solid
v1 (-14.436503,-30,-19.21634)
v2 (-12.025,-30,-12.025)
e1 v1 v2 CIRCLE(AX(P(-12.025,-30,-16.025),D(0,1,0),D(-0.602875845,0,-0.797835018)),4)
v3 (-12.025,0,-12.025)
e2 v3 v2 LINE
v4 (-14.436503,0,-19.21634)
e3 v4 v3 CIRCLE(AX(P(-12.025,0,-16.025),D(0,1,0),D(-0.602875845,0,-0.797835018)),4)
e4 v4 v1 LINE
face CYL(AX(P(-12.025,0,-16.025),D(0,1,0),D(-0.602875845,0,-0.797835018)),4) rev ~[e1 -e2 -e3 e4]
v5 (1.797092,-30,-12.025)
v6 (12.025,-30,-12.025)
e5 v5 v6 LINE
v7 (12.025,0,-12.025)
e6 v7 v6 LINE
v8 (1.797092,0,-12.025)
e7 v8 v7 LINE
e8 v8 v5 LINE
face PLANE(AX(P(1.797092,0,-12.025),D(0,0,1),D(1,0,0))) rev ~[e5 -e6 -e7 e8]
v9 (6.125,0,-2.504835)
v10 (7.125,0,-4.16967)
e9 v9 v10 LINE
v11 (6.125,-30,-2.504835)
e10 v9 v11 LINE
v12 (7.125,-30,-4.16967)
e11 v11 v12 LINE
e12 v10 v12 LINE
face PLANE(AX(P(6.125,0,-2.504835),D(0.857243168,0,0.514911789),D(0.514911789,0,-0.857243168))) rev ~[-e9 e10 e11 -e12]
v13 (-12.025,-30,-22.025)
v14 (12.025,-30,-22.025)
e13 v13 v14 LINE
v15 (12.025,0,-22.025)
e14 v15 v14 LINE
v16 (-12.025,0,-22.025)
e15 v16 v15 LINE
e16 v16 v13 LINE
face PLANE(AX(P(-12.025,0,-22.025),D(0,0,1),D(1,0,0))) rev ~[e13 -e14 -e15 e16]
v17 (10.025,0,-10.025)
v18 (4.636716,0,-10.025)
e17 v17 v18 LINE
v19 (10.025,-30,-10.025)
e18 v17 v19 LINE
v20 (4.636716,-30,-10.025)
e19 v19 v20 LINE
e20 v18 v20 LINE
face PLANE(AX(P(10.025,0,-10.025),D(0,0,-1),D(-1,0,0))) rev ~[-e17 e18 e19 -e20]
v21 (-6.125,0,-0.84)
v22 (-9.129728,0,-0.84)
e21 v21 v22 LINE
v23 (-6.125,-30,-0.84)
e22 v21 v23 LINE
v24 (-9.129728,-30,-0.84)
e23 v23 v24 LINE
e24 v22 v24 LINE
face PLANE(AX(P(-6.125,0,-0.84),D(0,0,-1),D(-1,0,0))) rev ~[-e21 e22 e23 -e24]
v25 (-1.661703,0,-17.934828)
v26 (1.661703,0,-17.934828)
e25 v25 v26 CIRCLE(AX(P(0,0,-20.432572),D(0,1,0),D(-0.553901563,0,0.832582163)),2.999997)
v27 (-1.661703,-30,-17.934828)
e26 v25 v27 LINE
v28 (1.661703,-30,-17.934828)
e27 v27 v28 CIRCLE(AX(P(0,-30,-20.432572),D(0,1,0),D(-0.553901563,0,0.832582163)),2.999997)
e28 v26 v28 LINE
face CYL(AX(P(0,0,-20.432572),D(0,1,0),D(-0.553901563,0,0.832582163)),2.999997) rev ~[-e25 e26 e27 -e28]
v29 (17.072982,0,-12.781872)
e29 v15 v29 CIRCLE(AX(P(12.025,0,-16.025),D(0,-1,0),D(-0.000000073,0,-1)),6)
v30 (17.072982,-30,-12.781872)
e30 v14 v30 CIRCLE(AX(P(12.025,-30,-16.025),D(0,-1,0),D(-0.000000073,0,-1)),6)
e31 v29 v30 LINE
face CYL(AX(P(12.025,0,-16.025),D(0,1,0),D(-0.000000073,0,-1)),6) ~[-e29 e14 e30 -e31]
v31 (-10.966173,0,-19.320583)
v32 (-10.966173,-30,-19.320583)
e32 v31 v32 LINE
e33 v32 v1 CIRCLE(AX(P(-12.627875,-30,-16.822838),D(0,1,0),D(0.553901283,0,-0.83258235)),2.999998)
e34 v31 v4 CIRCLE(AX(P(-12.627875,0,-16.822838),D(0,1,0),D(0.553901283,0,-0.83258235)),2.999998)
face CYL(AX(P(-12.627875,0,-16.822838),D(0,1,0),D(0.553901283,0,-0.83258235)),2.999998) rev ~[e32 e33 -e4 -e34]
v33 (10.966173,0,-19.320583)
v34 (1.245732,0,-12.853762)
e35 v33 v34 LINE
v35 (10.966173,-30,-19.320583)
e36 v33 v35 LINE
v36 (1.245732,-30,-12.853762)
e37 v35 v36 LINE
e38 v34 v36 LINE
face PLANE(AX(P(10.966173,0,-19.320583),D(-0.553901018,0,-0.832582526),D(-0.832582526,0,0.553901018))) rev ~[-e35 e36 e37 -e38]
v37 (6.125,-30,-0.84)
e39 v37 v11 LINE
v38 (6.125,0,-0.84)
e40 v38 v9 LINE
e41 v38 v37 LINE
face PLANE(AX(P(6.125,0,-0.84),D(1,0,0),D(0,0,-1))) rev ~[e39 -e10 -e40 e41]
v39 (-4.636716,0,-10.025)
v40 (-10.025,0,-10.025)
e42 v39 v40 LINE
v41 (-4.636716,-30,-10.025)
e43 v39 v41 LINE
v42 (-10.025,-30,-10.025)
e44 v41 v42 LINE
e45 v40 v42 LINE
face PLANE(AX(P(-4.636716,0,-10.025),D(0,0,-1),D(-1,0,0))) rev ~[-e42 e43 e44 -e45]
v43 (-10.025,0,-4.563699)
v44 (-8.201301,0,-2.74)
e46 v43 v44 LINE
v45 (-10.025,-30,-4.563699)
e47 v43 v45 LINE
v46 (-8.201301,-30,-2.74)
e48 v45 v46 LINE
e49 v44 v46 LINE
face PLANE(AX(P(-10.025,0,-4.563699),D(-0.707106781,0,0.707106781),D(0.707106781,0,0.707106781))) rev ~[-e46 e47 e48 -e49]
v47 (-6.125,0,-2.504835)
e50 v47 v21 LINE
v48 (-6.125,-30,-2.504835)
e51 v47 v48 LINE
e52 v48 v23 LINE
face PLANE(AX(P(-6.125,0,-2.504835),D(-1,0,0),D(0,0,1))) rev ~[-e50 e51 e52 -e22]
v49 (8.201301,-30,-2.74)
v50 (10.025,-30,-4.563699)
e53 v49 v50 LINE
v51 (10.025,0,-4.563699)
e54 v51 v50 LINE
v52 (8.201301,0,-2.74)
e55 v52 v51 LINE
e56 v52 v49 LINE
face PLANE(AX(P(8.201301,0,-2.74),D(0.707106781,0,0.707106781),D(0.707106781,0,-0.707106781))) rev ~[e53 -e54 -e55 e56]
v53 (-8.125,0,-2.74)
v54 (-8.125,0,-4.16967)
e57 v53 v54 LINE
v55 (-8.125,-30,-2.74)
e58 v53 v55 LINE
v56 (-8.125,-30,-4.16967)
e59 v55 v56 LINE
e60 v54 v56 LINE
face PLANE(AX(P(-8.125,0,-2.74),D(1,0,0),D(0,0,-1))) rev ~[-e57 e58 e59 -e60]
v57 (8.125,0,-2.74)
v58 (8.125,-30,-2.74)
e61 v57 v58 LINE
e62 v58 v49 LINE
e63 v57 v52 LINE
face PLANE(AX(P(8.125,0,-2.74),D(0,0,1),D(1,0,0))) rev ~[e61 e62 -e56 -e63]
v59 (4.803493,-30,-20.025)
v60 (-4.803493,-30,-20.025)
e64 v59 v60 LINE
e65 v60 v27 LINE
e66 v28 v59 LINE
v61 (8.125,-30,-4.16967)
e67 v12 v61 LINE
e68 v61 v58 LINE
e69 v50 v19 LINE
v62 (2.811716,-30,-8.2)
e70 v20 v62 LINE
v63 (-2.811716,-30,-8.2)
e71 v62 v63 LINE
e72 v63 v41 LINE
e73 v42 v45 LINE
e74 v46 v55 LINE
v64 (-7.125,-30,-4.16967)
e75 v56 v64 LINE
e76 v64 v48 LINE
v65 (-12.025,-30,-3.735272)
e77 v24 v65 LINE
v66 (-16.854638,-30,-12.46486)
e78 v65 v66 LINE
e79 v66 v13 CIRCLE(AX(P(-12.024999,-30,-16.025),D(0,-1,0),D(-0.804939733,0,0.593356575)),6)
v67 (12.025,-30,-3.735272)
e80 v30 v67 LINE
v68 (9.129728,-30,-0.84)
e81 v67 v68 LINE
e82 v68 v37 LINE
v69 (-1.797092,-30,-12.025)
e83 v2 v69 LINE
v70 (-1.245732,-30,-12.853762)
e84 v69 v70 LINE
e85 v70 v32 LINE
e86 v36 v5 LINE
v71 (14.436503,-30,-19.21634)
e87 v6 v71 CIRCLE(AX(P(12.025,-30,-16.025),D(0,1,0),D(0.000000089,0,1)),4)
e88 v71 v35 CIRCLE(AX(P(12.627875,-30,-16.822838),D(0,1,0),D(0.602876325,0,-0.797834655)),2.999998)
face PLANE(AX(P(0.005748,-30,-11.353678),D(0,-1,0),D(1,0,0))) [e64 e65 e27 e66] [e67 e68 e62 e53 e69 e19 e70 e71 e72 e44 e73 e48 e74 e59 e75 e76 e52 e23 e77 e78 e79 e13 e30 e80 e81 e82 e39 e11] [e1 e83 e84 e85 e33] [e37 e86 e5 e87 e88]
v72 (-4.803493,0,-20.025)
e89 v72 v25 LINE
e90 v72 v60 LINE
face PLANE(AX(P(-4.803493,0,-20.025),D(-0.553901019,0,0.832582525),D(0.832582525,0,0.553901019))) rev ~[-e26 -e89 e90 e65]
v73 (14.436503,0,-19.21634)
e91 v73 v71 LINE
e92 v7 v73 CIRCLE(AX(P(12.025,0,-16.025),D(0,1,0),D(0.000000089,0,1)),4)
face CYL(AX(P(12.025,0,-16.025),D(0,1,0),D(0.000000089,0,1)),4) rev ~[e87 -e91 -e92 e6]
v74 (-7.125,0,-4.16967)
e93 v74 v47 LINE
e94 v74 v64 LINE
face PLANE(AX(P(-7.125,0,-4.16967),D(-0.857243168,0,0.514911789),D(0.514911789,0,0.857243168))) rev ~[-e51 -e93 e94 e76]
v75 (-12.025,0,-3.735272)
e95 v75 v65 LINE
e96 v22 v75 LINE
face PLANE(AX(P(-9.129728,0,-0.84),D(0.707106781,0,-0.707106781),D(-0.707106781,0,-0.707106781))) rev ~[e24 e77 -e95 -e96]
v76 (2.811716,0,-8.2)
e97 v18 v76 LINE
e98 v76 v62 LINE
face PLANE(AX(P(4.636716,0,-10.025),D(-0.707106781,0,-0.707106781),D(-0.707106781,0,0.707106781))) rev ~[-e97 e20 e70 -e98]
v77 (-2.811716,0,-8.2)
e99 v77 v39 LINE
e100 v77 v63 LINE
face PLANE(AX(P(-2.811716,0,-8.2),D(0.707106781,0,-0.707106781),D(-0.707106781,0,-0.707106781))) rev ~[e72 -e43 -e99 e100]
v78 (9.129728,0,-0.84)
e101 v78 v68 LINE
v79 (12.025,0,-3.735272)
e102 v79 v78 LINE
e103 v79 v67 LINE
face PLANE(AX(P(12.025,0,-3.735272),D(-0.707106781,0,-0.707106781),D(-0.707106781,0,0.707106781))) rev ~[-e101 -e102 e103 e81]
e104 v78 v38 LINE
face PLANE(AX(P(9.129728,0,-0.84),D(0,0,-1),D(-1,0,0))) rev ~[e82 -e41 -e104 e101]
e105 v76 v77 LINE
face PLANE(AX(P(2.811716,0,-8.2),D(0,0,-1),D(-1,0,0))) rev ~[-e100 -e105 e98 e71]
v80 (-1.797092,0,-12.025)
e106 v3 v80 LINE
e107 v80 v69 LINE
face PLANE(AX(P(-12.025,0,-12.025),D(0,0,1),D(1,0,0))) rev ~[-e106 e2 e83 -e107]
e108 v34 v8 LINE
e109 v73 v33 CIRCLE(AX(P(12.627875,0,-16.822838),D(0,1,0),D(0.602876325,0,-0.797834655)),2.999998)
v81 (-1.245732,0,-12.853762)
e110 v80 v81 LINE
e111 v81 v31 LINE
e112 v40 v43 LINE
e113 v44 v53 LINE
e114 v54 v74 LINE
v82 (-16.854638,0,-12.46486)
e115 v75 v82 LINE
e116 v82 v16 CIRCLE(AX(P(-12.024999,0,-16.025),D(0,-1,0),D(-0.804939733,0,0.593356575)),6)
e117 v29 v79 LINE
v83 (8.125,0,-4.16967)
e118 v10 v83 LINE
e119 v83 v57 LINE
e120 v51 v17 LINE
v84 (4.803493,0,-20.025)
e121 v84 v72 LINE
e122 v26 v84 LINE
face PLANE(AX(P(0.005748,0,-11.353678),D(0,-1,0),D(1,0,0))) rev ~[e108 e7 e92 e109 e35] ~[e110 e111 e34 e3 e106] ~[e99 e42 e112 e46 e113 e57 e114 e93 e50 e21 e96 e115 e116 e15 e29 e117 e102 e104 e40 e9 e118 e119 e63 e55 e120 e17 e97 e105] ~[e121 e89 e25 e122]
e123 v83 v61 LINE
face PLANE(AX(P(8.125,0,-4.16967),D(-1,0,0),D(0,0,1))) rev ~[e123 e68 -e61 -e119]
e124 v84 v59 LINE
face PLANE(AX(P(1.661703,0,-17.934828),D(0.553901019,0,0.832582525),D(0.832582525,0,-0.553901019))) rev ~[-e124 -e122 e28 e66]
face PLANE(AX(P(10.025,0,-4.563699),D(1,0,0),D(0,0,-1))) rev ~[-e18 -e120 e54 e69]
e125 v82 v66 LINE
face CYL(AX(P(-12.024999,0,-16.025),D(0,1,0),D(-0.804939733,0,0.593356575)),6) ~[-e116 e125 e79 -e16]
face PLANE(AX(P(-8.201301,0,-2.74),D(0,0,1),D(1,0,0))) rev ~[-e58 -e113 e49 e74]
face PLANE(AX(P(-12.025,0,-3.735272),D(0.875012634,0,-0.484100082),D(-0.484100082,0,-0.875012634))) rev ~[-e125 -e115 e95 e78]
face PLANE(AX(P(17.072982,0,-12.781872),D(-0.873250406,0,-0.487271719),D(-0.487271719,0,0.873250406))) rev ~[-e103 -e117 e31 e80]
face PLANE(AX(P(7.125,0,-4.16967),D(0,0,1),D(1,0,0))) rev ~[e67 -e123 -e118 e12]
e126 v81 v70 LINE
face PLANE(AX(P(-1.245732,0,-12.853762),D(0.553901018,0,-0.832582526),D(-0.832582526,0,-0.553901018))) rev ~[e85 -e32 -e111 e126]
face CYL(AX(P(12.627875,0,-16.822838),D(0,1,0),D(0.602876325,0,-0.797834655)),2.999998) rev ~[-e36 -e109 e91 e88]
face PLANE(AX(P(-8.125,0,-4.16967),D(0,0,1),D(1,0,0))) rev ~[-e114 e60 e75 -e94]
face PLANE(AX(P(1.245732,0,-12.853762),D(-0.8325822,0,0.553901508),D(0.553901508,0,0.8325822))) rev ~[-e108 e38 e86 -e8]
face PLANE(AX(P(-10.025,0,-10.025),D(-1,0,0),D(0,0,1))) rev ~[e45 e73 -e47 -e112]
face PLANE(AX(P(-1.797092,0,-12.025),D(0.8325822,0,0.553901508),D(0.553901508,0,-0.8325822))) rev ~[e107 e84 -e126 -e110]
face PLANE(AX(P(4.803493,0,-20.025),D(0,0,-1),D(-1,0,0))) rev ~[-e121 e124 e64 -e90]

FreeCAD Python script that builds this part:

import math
import FreeCAD as App
import Part
import Sketcher

doc = App.newDocument("Part")
body = doc.addObject("PartDesign::Body", "Body")

# Sketch on XZ plane
sketch1 = body.newObject("Sketcher::SketchObject", "Sketch")
sketch1.AttachmentSupport = (doc.getObject("XZ_Plane"), [""])
sketch1.MapMode = "FlatFace"
sketch1.addGeometry([
    Part.LineSegment(App.Vector(-10.025, -10.025, 0), App.Vector(-10.025, -4.563699, 0)),  # 0
    Part.LineSegment(App.Vector(-10.025, -4.563699, 0), App.Vector(-8.201301, -2.74, 0)),  # 1
    Part.LineSegment(App.Vector(-8.201301, -2.74, 0), App.Vector(-8.125, -2.74, 0)),  # 2
    Part.LineSegment(App.Vector(-8.125, -2.74, 0), App.Vector(-8.125, -4.16967, 0)),  # 3
    Part.LineSegment(App.Vector(-8.125, -4.16967, 0), App.Vector(-7.125, -4.16967, 0)),  # 4
    Part.LineSegment(App.Vector(-7.125, -4.16967, 0), App.Vector(-6.125, -2.504835, 0)),  # 5
    Part.LineSegment(App.Vector(-6.125, -2.504835, 0), App.Vector(-6.125, -0.84, 0)),  # 6
    Part.LineSegment(App.Vector(-6.125, -0.84, 0), App.Vector(-9.129728, -0.84, 0)),  # 7
    Part.LineSegment(App.Vector(-9.129728, -0.84, 0), App.Vector(-12.025, -3.735272, 0)),  # 8
    Part.LineSegment(App.Vector(-12.025, -3.735272, 0), App.Vector(-16.854638, -12.46486, 0)),  # 9
    Part.ArcOfCircle(Part.Circle(App.Vector(-12.024999, -16.025, 0), App.Vector(0, 0, 1), 6), math.radians(143.604435), math.radians(269.999994)),  # 10
    Part.LineSegment(App.Vector(-12.025, -22.025, 0), App.Vector(12.025, -22.025, 0)),  # 11
    Part.ArcOfCircle(Part.Circle(App.Vector(12.025, -16.025, 0), App.Vector(0, 0, 1), 6), math.radians(-90.000004), math.radians(32.719138)),  # 12
    Part.LineSegment(App.Vector(17.072982, -12.781872, 0), App.Vector(12.025, -3.735272, 0)),  # 13
    Part.LineSegment(App.Vector(12.025, -3.735272, 0), App.Vector(9.129728, -0.84, 0)),  # 14
    Part.LineSegment(App.Vector(9.129728, -0.84, 0), App.Vector(6.125, -0.84, 0)),  # 15
    Part.LineSegment(App.Vector(6.125, -0.84, 0), App.Vector(6.125, -2.504835, 0)),  # 16
    Part.LineSegment(App.Vector(6.125, -2.504835, 0), App.Vector(7.125, -4.16967, 0)),  # 17
    Part.LineSegment(App.Vector(7.125, -4.16967, 0), App.Vector(8.125, -4.16967, 0)),  # 18
    Part.LineSegment(App.Vector(8.125, -4.16967, 0), App.Vector(8.125, -2.74, 0)),  # 19
    Part.LineSegment(App.Vector(8.125, -2.74, 0), App.Vector(8.201301, -2.74, 0)),  # 20
    Part.LineSegment(App.Vector(8.201301, -2.74, 0), App.Vector(10.025, -4.563699, 0)),  # 21
    Part.LineSegment(App.Vector(10.025, -4.563699, 0), App.Vector(10.025, -10.025, 0)),  # 22
    Part.LineSegment(App.Vector(10.025, -10.025, 0), App.Vector(4.636716, -10.025, 0)),  # 23
    Part.LineSegment(App.Vector(4.636716, -10.025, 0), App.Vector(2.811716, -8.2, 0)),  # 24
    Part.LineSegment(App.Vector(2.811716, -8.2, 0), App.Vector(-2.811716, -8.2, 0)),  # 25
    Part.LineSegment(App.Vector(-2.811716, -8.2, 0), App.Vector(-4.636716, -10.025, 0)),  # 26
    Part.LineSegment(App.Vector(-4.636716, -10.025, 0), App.Vector(-10.025, -10.025, 0)),  # 27
    Part.LineSegment(App.Vector(1.661703, -17.934828, 0), App.Vector(4.803493, -20.025, 0)),  # 28
    Part.LineSegment(App.Vector(4.803493, -20.025, 0), App.Vector(-4.803493, -20.025, 0)),  # 29
    Part.LineSegment(App.Vector(-4.803493, -20.025, 0), App.Vector(-1.661703, -17.934828, 0)),  # 30
    Part.ArcOfCircle(Part.Circle(App.Vector(0, -20.432572, 0), App.Vector(0, 0, 1), 2.999997), math.radians(56.36491), math.radians(123.63509)),  # 31
    Part.ArcOfCircle(Part.Circle(App.Vector(-12.627875, -16.822838, 0), App.Vector(0, 0, 1), 2.999998), math.radians(-127.076178), math.radians(-56.364929)),  # 32
    Part.ArcOfCircle(Part.Circle(App.Vector(-12.025, -16.025, 0), App.Vector(0, 0, 1), 4), math.radians(90.000005), math.radians(232.923856)),  # 33
    Part.LineSegment(App.Vector(-12.025, -12.025, 0), App.Vector(-1.797092, -12.025, 0)),  # 34
    Part.LineSegment(App.Vector(-1.797092, -12.025, 0), App.Vector(-1.245732, -12.853762, 0)),  # 35
    Part.LineSegment(App.Vector(-1.245732, -12.853762, 0), App.Vector(-10.966173, -19.320583, 0)),  # 36
    Part.LineSegment(App.Vector(1.797092, -12.025, 0), App.Vector(12.025, -12.025, 0)),  # 37
    Part.ArcOfCircle(Part.Circle(App.Vector(12.025, -16.025, 0), App.Vector(0, 0, 1), 4), math.radians(-52.923856), math.radians(89.999995)),  # 38
    Part.ArcOfCircle(Part.Circle(App.Vector(12.627875, -16.822838, 0), App.Vector(0, 0, 1), 2.999998), math.radians(-123.635071), math.radians(-52.923822)),  # 39
    Part.LineSegment(App.Vector(10.966173, -19.320583, 0), App.Vector(1.245732, -12.853762, 0)),  # 40
    Part.LineSegment(App.Vector(1.245732, -12.853762, 0), App.Vector(1.797092, -12.025, 0)),  # 41
], False)
sketch1.addConstraint([
    Sketcher.Constraint("Coincident", 0, 2, 1, 1),
    Sketcher.Constraint("Coincident", 1, 2, 2, 1),
    Sketcher.Constraint("Coincident", 2, 2, 3, 1),
    Sketcher.Constraint("Coincident", 3, 2, 4, 1),
    Sketcher.Constraint("Coincident", 4, 2, 5, 1),
    Sketcher.Constraint("Coincident", 5, 2, 6, 1),
    Sketcher.Constraint("Coincident", 6, 2, 7, 1),
    Sketcher.Constraint("Coincident", 7, 2, 8, 1),
    Sketcher.Constraint("Coincident", 8, 2, 9, 1),
    Sketcher.Constraint("Coincident", 9, 2, 10, 1),
    Sketcher.Constraint("Tangent", 10, 2, 11, 1),
    Sketcher.Constraint("Tangent", 11, 2, 12, 1),
    Sketcher.Constraint("Coincident", 12, 2, 13, 1),
    Sketcher.Constraint("Coincident", 13, 2, 14, 1),
    Sketcher.Constraint("Coincident", 14, 2, 15, 1),
    Sketcher.Constraint("Coincident", 15, 2, 16, 1),
    Sketcher.Constraint("Coincident", 16, 2, 17, 1),
    Sketcher.Constraint("Coincident", 17, 2, 18, 1),
    Sketcher.Constraint("Coincident", 18, 2, 19, 1),
    Sketcher.Constraint("Coincident", 19, 2, 20, 1),
    Sketcher.Constraint("Coincident", 20, 2, 21, 1),
    Sketcher.Constraint("Coincident", 21, 2, 22, 1),
    Sketcher.Constraint("Coincident", 22, 2, 23, 1),
    Sketcher.Constraint("Coincident", 23, 2, 24, 1),
    Sketcher.Constraint("Coincident", 24, 2, 25, 1),
    Sketcher.Constraint("Coincident", 25, 2, 26, 1),
    Sketcher.Constraint("Coincident", 26, 2, 27, 1),
    Sketcher.Constraint("Coincident", 27, 2, 0, 1),
    Sketcher.Constraint("Coincident", 28, 2, 29, 1),
    Sketcher.Constraint("Coincident", 29, 2, 30, 1),
    Sketcher.Constraint("Tangent", 30, 2, 31, 2),
    Sketcher.Constraint("Tangent", 31, 1, 28, 1),
    Sketcher.Constraint("Tangent", 32, 1, 33, 2),
    Sketcher.Constraint("Tangent", 33, 1, 34, 1),
    Sketcher.Constraint("Coincident", 34, 2, 35, 1),
    Sketcher.Constraint("Coincident", 35, 2, 36, 1),
    Sketcher.Constraint("Tangent", 36, 2, 32, 2),
    Sketcher.Constraint("Tangent", 37, 2, 38, 2),
    Sketcher.Constraint("Tangent", 38, 1, 39, 2),
    Sketcher.Constraint("Tangent", 39, 1, 40, 1),
    Sketcher.Constraint("Coincident", 40, 2, 41, 1),
    Sketcher.Constraint("Coincident", 41, 2, 37, 1),
    Sketcher.Constraint("Vertical", 0),
    Sketcher.Constraint("Horizontal", 2),
    Sketcher.Constraint("Vertical", 3),
    Sketcher.Constraint("Horizontal", 4),
    Sketcher.Constraint("Vertical", 6),
    Sketcher.Constraint("Horizontal", 7),
    Sketcher.Constraint("Horizontal", 11),
    Sketcher.Constraint("Horizontal", 15),
    Sketcher.Constraint("Vertical", 16),
    Sketcher.Constraint("Horizontal", 18),
    Sketcher.Constraint("Vertical", 19),
    Sketcher.Constraint("Horizontal", 20),
    Sketcher.Constraint("Vertical", 22),
    Sketcher.Constraint("Horizontal", 23),
    Sketcher.Constraint("Horizontal", 25),
    Sketcher.Constraint("Horizontal", 27),
    Sketcher.Constraint("Horizontal", 29),
    Sketcher.Constraint("Horizontal", 34),
    Sketcher.Constraint("Horizontal", 37),
    Sketcher.Constraint("Coincident", 33, 3, 10, 3),
    Sketcher.Constraint("Coincident", 38, 3, 12, 3),
    Sketcher.Constraint("Equal", 10, 12),
    Sketcher.Constraint("Equal", 31, 32),
    Sketcher.Constraint("Equal", 33, 38),
    Sketcher.Constraint("Equal", 32, 39),
    Sketcher.Constraint("Symmetric", 32, 3, 39, 3, -2),
    Sketcher.Constraint("Symmetric", 8, 2, 13, 2, -2),
    Sketcher.Constraint("Symmetric", 7, 2, 14, 2, -2),
    Sketcher.Constraint("Symmetric", 5, 2, 16, 2, -2),
    Sketcher.Constraint("Symmetric", 4, 2, 17, 2, -2),
    Sketcher.Constraint("Symmetric", 2, 2, 19, 2, -2),
    Sketcher.Constraint("Symmetric", 0, 2, 21, 2, -2),
    Sketcher.Constraint("Symmetric", 23, 2, 26, 2, -2),
    Sketcher.Constraint("Symmetric", 30, 2, 31, 1, -2),
    Sketcher.Constraint("Symmetric", 35, 2, 40, 2, -2),
    Sketcher.Constraint("Parallel", 1, 8),
    Sketcher.Constraint("Perpendicular", 8, 14),
    Sketcher.Constraint("Parallel", 14, 21),
    Sketcher.Constraint("Parallel", 21, 24),
    Sketcher.Constraint("Perpendicular", 24, 26),
    Sketcher.Constraint("Perpendicular", 30, 35),
    Sketcher.Constraint("Perpendicular", 35, 36),
    Sketcher.Constraint("Perpendicular", 40, 41),
    Sketcher.Constraint("Vertical", 33, 3, 8, 2),
    Sketcher.Constraint("Radius", 10, 6.0),
    Sketcher.Constraint("Radius", 33, 4.0),
    Sketcher.Constraint("DistanceX", 4, 1, 4, 2, 1.0),
    Sketcher.Constraint("DistanceX", 10, 3, 0, 2, 1.999999),
    Sketcher.Constraint("DistanceX", 4, 2, 5, 2, 1.0),
    Sketcher.Constraint("DistanceY", 38, 3, 22, 2, 6.0),
    Sketcher.Constraint("DistanceY", 11, 2, 28, 2, 2.0),
    Sketcher.Constraint("DistanceX", 11, 1, 11, 2, 24.05),
    Sketcher.Constraint("DistanceY", 24, 2, -1, 1, 8.2),
    Sketcher.Constraint("DistanceX", 0, 2, 2, 2, 1.9),
    Sketcher.Constraint("DistanceY", 2, 2, 6, 2, 1.9),
    Sketcher.Constraint("DistanceY", 1, 2, -1, 1, 2.74),
    Sketcher.Constraint("DistanceX", 2, 1, 2, 2, 0.076301),
    Sketcher.Constraint("DistanceY", 0, 1, 0, 2, 5.461301),
    Sketcher.Constraint("Radius", 31, 2.999997),
    Sketcher.Constraint("DistanceX", 7, 2, 7, 1, 3.004728),
    Sketcher.Constraint("DistanceX", 34, 1, 34, 2, 10.227908),
    Sketcher.Constraint("DistanceY", 3, 2, 3, 1, 1.42967),
    Sketcher.Constraint("DistanceY", 31, 3, 12, 2, 7.6507),
    Sketcher.Constraint("DistanceY", 12, 2, 13, 2, 9.0466),
    Sketcher.Constraint("Distance", 5, 1.94208),
    Sketcher.Constraint("Distance", 35, 0.995412),
    Sketcher.Constraint("Distance", 36, 11.675048),
    Sketcher.Constraint("DistanceX", 23, 2, 23, 1, 5.388284),
    Sketcher.Constraint("DistanceX", 9, 2, -1, 1, 16.854638),
])
pad1 = body.newObject("PartDesign::Pad", "Pad")
pad1.Profile = sketch1
pad1.Length = 30

doc.recompute()
